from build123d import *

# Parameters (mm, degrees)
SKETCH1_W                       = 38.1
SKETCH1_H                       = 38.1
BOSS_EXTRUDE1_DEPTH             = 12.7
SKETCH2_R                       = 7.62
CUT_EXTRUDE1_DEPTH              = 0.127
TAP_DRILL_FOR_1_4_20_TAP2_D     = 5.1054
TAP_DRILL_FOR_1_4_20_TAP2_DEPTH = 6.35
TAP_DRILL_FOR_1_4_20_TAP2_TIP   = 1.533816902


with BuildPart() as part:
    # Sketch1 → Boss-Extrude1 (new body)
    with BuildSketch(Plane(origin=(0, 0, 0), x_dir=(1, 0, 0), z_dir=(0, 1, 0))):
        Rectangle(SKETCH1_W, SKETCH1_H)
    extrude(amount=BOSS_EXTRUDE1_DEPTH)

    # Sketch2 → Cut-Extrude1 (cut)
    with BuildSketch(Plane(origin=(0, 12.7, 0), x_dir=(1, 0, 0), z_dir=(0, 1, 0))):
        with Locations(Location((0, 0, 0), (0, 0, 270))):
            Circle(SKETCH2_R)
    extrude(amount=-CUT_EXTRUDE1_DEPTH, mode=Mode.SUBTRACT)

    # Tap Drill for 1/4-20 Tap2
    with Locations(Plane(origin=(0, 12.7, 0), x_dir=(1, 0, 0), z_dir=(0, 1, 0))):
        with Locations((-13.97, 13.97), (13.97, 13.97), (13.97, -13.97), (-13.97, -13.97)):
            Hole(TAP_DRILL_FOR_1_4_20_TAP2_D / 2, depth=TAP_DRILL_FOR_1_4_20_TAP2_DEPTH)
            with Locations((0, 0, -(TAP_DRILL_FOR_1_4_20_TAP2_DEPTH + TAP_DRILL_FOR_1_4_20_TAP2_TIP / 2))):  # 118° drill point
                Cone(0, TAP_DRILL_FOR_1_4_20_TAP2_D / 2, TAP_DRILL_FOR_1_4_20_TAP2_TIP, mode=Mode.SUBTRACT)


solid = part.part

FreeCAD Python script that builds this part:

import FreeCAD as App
import Part
import Sketcher
from FreeCAD import Vector
Q = App.Units.Quantity

doc = App.newDocument("Part")
body = doc.addObject("PartDesign::Body", "Body")

# Sketch on XZ plane
sketch1 = body.newObject("Sketcher::SketchObject", "Sketch")
sketch1.AttachmentSupport = (doc.getObject("XZ_Plane"), [""])
sketch1.MapMode = "FlatFace"
sketch1.addGeometry([
    Part.LineSegment(Vector(-19, -19, 0), Vector(-19, 19, 0)),
    Part.LineSegment(Vector(-19, 19, 0), Vector(19, 19, 0)),
    Part.LineSegment(Vector(19, 19, 0), Vector(19, -19, 0)),
    Part.LineSegment(Vector(19, -19, 0), Vector(-19, -19, 0)),
], False)
sketch1.addConstraint([
    Sketcher.Constraint("Coincident", 0, 2, 1, 1),
    Sketcher.Constraint("Coincident", 1, 2, 2, 1),
    Sketcher.Constraint("Coincident", 2, 2, 3, 1),
    Sketcher.Constraint("Coincident", 3, 2, 0, 1),
    Sketcher.Constraint("Vertical", 0),
    Sketcher.Constraint("Horizontal", 1),
    Sketcher.Constraint("Vertical", 2),
    Sketcher.Constraint("Horizontal", 3),
    Sketcher.Constraint("Symmetric", 0, 2, 2, 2, -1, 1),
    Sketcher.Constraint("Equal", 3, 0),
    Sketcher.Constraint("DistanceX", 1, 1, 1, 2, Q("1.5 in")),
])
pad1 = body.newObject("PartDesign::Pad", "Pad")
pad1.Profile = sketch1
pad1.Length = Q("0.5 in")
pad1.Reversed = True

# Sketch on XZ plane
sketch2 = body.newObject("Sketcher::SketchObject", "Sketch001")
sketch2.AttachmentSupport = (doc.getObject("XZ_Plane"), [""])
sketch2.MapMode = "FlatFace"
sketch2.AttachmentOffset = App.Placement(Vector(0, 0, -0.5 * 25.4), App.Rotation())
sketch2.addGeometry(Part.Circle(Vector(0, 0, 0), Vector(0, 0, 1), 8), False)
sketch2.addConstraint([
    Sketcher.Constraint("Coincident", 0, 3, -1, 1),
    Sketcher.Constraint("Diameter", 0, Q("0.6 in")),
])
pocket1 = body.newObject("PartDesign::Pocket", "Pocket")
pocket1.Profile = sketch2
pocket1.Length = Q("0.005 in")
pocket1.Reversed = True

# Sketch on XZ plane
sketch3 = body.newObject("Sketcher::SketchObject", "Sketch002")
sketch3.AttachmentSupport = (doc.getObject("XZ_Plane"), [""])
sketch3.MapMode = "FlatFace"
sketch3.AttachmentOffset = App.Placement(Vector(0, 0, -0.5 * 25.4), App.Rotation())
sketch3.addGeometry([
    Part.Circle(Vector(-14, -14, 0), Vector(0, 0, 1), 2.6),
    Part.Circle(Vector(14, -14, 0), Vector(0, 0, 1), 2.6),
    Part.Circle(Vector(14, 14, 0), Vector(0, 0, 1), 2.6),
    Part.Circle(Vector(-14, 14, 0), Vector(0, 0, 1), 2.6),
], False)
sketch3.addConstraint([
    Sketcher.Constraint("Equal", 0, 1),
    Sketcher.Constraint("Equal", 1, 2),
    Sketcher.Constraint("Equal", 2, 3),
    Sketcher.Constraint("Symmetric", 0, 3, 2, 3, -1, 1),
    Sketcher.Constraint("Symmetric", 1, 3, 3, 3, -1, 1),
    Sketcher.Constraint("Symmetric", 0, 3, 1, 3, -2),
    Sketcher.Constraint("Diameter", 0, Q("0.201 in")),
    Sketcher.Constraint("DistanceX", 0, 3, 1, 3, Q("1.1 in")),
    Sketcher.Constraint("DistanceY", 1, 3, 2, 3, Q("1.1 in")),
])
doc.recompute()
hole = body.newObject("PartDesign::Hole", "Hole")
hole.Profile = sketch3
hole.ThreadType = "None"
hole.Diameter = Q("0.201 in")
hole.DepthType = "Dimension"
hole.Depth = Q("0.25 in")
hole.DrillPoint = "Angled"
hole.DrillPointAngle = 118
hole.Reversed = True

doc.recompute()
